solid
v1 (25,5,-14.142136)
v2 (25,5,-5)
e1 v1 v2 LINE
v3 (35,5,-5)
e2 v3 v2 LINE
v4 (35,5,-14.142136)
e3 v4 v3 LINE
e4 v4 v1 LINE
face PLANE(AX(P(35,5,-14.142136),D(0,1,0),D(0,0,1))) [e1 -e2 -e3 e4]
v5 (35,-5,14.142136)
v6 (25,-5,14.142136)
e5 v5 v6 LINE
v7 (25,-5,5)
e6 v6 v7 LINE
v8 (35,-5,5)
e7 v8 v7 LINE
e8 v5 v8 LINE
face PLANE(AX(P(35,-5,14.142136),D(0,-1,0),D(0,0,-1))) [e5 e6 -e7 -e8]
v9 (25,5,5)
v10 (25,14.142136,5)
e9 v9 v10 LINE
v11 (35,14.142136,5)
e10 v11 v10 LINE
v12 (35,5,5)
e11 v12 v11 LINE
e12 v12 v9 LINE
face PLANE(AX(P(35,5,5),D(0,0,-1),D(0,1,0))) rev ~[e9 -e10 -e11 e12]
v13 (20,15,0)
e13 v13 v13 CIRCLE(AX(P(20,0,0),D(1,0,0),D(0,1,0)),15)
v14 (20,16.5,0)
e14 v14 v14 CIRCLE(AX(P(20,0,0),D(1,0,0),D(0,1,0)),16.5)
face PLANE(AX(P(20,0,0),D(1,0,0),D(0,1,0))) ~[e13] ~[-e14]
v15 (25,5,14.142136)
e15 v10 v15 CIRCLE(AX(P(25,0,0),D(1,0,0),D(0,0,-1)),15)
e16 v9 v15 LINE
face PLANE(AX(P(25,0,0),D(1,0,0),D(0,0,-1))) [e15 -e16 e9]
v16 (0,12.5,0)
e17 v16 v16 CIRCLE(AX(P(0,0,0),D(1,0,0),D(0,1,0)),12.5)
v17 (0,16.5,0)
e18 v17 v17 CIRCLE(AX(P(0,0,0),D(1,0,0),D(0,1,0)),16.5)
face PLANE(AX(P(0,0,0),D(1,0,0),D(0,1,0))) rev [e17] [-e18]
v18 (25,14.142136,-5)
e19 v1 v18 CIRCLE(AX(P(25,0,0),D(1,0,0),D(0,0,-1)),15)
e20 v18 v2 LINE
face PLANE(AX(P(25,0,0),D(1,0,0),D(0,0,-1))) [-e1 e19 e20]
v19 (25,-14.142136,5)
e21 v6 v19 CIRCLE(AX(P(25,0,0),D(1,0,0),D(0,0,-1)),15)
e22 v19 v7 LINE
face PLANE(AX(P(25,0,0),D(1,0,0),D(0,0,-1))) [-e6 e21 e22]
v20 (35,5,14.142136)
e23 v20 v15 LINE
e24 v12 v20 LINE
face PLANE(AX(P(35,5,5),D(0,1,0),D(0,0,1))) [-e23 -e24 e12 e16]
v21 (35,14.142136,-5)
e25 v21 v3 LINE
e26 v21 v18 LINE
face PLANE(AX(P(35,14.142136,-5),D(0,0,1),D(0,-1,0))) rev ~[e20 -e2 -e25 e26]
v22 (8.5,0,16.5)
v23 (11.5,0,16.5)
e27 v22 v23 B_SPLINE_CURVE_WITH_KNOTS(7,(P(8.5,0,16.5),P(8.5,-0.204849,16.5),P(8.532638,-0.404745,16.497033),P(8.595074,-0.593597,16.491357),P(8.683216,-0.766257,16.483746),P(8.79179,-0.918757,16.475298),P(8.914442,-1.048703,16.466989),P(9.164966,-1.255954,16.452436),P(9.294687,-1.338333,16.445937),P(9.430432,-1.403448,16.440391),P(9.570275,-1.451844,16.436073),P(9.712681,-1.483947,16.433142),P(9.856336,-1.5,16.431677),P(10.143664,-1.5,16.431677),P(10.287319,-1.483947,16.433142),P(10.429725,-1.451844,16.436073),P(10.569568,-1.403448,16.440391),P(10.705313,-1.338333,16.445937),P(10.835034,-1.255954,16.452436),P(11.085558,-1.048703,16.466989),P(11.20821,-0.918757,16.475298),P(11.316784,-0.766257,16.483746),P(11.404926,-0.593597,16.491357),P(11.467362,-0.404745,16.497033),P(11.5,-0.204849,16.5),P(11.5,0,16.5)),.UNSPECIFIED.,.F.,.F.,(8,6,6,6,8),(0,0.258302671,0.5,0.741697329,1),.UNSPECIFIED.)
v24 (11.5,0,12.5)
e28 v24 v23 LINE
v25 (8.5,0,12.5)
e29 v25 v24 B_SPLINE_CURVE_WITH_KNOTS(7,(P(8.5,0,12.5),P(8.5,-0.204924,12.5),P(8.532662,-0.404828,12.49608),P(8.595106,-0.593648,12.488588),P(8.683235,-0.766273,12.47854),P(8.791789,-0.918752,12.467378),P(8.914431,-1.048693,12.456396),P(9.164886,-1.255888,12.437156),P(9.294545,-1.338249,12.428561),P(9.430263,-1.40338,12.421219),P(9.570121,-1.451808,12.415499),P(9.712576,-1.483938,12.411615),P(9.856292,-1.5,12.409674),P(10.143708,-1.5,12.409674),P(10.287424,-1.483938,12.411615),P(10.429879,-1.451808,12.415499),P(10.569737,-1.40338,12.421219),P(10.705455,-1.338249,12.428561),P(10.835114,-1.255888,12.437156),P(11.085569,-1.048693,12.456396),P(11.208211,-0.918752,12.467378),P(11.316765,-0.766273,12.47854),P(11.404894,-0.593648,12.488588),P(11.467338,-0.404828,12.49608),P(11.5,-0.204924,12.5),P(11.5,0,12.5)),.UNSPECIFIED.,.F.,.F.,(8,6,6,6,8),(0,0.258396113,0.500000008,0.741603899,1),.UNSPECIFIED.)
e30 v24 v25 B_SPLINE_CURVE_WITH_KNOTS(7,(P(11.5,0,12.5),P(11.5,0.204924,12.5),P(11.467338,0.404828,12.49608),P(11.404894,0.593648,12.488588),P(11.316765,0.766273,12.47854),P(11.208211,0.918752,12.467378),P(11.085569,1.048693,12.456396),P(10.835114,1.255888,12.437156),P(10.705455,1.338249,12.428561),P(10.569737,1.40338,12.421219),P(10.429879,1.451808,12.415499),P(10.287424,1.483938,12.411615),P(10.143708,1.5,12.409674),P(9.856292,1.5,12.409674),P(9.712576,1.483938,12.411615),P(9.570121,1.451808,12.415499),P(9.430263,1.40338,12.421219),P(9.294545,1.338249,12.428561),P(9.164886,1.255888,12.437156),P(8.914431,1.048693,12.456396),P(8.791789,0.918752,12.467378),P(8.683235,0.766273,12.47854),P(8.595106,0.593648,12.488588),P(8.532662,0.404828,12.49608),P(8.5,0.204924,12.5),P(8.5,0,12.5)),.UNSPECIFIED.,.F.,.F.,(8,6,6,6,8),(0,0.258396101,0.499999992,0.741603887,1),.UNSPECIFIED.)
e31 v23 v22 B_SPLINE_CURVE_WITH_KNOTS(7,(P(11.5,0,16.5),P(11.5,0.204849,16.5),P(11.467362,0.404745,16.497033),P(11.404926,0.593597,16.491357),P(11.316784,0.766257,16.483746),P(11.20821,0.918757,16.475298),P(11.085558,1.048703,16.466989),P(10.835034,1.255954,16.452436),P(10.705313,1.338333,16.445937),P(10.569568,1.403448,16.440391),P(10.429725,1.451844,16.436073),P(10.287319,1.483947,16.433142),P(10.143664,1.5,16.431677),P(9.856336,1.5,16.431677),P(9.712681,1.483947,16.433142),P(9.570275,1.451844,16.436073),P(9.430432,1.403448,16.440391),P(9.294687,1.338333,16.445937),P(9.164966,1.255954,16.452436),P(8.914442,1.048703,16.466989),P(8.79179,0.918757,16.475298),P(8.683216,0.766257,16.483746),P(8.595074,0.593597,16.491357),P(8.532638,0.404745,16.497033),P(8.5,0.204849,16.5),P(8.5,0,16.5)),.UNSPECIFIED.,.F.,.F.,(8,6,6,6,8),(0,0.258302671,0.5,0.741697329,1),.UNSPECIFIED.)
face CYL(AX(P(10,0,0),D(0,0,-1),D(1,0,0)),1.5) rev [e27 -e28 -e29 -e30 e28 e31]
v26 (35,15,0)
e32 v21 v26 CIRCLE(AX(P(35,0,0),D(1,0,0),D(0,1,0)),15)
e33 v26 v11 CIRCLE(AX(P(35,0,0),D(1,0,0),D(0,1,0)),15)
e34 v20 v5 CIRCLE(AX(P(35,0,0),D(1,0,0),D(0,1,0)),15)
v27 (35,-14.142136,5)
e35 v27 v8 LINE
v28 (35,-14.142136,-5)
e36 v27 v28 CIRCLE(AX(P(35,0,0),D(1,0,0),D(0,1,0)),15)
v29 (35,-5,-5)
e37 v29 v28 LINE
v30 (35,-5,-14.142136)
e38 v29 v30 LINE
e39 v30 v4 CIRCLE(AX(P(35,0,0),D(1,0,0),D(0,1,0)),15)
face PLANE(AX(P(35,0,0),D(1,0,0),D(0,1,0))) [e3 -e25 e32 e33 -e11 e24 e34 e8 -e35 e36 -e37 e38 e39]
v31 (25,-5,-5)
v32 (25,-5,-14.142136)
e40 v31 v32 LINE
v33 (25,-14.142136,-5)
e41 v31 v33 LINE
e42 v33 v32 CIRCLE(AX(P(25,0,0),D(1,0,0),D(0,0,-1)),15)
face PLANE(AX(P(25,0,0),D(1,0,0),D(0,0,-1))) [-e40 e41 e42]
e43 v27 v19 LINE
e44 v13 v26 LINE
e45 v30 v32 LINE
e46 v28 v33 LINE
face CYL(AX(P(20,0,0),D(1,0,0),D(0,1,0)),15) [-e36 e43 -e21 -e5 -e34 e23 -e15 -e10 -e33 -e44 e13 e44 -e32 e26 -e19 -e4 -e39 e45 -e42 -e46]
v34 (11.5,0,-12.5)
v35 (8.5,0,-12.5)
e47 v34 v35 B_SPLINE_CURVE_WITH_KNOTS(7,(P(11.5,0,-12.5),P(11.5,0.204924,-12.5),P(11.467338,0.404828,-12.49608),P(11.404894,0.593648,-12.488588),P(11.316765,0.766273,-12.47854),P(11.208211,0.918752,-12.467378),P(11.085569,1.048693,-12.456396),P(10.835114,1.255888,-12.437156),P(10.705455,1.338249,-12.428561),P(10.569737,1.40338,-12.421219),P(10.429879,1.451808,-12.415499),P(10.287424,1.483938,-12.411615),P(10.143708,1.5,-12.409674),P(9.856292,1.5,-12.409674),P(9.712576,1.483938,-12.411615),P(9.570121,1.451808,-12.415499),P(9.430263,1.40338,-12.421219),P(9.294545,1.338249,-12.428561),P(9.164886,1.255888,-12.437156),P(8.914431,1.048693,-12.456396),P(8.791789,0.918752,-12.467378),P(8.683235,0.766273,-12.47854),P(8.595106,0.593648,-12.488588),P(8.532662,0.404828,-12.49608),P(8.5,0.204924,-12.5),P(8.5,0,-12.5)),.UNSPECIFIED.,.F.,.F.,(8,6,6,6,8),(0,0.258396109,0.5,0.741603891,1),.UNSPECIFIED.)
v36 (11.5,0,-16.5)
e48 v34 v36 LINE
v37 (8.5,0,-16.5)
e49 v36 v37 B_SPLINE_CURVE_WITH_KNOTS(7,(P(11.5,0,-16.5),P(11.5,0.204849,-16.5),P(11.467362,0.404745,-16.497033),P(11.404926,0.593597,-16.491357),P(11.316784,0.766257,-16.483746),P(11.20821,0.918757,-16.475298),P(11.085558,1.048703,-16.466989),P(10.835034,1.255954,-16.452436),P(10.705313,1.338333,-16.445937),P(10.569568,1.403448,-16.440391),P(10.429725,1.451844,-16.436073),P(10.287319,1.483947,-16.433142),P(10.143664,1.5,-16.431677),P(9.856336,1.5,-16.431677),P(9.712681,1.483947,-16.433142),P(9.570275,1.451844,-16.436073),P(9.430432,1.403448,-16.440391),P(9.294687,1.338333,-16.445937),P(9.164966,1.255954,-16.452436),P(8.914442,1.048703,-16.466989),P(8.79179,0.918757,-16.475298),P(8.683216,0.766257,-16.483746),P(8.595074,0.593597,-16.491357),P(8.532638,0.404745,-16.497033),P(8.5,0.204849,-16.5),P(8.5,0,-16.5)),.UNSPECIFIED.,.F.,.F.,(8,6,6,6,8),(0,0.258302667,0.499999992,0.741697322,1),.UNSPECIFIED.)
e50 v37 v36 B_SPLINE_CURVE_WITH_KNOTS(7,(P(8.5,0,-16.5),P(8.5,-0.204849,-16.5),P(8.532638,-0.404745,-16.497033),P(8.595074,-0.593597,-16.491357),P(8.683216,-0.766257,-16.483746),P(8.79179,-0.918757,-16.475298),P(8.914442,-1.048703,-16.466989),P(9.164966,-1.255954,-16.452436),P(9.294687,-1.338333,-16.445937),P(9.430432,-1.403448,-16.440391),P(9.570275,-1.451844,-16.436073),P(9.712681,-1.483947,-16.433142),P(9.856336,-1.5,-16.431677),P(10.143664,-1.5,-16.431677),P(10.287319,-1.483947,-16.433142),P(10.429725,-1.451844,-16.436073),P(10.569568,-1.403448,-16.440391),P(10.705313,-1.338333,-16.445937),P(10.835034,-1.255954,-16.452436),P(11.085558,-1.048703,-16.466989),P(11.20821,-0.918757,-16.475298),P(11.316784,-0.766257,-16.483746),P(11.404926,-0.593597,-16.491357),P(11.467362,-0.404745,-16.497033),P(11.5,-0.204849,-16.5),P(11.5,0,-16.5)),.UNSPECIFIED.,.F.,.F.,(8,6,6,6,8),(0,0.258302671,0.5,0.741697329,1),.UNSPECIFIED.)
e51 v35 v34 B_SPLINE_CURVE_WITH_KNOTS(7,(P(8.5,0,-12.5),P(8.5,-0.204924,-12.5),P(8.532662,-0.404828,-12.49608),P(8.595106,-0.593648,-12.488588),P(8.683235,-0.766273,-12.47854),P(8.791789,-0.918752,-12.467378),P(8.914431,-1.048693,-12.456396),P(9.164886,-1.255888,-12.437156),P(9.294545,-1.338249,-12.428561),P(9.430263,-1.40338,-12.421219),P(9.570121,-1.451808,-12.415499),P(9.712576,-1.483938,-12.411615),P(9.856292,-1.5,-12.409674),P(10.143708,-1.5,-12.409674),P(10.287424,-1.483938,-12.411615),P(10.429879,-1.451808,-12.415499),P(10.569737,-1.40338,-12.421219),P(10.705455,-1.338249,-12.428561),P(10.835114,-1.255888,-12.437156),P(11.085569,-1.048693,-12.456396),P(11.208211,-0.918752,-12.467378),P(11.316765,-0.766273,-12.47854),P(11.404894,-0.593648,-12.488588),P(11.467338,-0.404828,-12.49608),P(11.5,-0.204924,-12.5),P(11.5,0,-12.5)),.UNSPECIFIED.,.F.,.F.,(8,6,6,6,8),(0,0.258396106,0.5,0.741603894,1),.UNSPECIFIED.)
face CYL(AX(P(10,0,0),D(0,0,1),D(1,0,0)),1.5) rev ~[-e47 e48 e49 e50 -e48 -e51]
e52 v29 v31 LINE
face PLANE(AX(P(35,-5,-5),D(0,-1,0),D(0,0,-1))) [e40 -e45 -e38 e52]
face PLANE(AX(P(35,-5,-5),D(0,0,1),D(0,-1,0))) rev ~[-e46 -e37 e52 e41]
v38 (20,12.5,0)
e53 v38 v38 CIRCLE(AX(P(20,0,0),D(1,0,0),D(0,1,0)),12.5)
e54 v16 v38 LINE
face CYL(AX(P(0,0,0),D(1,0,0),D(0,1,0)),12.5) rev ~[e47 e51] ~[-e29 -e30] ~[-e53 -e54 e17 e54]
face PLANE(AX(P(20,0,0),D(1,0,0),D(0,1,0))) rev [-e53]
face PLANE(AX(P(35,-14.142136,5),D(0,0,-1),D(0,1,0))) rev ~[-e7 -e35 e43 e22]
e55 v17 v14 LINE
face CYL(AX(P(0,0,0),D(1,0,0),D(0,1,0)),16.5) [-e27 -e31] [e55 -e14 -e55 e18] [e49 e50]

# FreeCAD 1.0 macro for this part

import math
import FreeCAD as App
import Part
import Sketcher
Q = App.Units.Quantity


def add_polygon(sketch, points):
    """Adds a closed chain of lines whose ends are joined by coincident constraints."""
    first, n = sketch.GeometryCount, len(points)
    for a, b in zip(points, points[1:] + points[:1]):
        sketch.addGeometry(Part.LineSegment(App.Vector(*a, 0), App.Vector(*b, 0)), False)
    for i in range(n):
        sketch.addConstraint(Sketcher.Constraint("Coincident", first + i, 2, first + (i + 1) % n, 1))

doc = App.newDocument("Part")
params = doc.addObject("Spreadsheet::Sheet", "Params")
for row, (alias, value) in enumerate([
    ("sketch1_width", "15 mm"),
    ("sketch1_width2", "20 mm"),
    ("sketch1_height", "4 mm"),
    ("sketch1_height2", "12.5 mm"),
    ("revolution_angle", "360 deg"),
    ("sketch2_diameter", "3 mm"),
    ("pocket1_length", "40 mm"),
    ("sketch3_radius", "15 mm"),
    ("pocket2_length", "10 mm"),
], start=1):
    params.set(f"A{row}", alias)
    params.set(f"B{row}", "=" + value)
    params.setAlias(f"B{row}", alias)

body = doc.addObject("PartDesign::Body", "Body")

sketch1 = body.newObject("Sketcher::SketchObject", "Sketch")
sketch1.AttachmentSupport = (doc.getObject("XY_Plane"), [""])
sketch1.MapMode = "FlatFace"
add_polygon(sketch1, [(20, 12.5), (20, 0), (35, 0), (35, 15), (20, 15), (20, 16.5), (0, 16.5), (0, 12.5)])
sketch1.addConstraint([
    Sketcher.Constraint("Vertical", 0),
    Sketcher.Constraint("Horizontal", 1),
    Sketcher.Constraint("Vertical", 2),
    Sketcher.Constraint("Horizontal", 3),
    Sketcher.Constraint("Vertical", 4),
    Sketcher.Constraint("Horizontal", 5),
    Sketcher.Constraint("Vertical", 6),
    Sketcher.Constraint("Horizontal", 7),
    Sketcher.Constraint("PointOnObject", 0, 2, -1),
    Sketcher.Constraint("PointOnObject", 5, 2, -2),
    Sketcher.Constraint("Vertical", 0, 2, 3, 2),
    Sketcher.Constraint("Equal", 3, 2),
    Sketcher.Constraint("DistanceX", 1, 1, 1, 2, Q("15 mm")),
    Sketcher.Constraint("DistanceX", 5, 2, 5, 1, Q("20 mm")),
    Sketcher.Constraint("DistanceY", 6, 2, 6, 1, Q("4 mm")),
    Sketcher.Constraint("DistanceY", 0, 2, 0, 1, Q("12.5 mm")),
])
sketch1.setExpression("Constraints[20]", "Params.sketch1_width")
sketch1.setExpression("Constraints[21]", "Params.sketch1_width2")
sketch1.setExpression("Constraints[22]", "Params.sketch1_height")
sketch1.setExpression("Constraints[23]", "Params.sketch1_height2")
revolution = body.newObject("PartDesign::Revolution", "Revolution")
revolution.Profile = sketch1
revolution.ReferenceAxis = (sketch1, ["H_Axis"])
revolution.setExpression("Angle", "Params.revolution_angle")

sketch2 = body.newObject("Sketcher::SketchObject", "Sketch001")
sketch2.AttachmentSupport = (doc.getObject("XY_Plane"), [""])
sketch2.MapMode = "FlatFace"
sketch2.addGeometry(Part.Circle(App.Vector(10, 0, 0), App.Vector(0, 0, 1), 1.5), False)
sketch2.addConstraint([
    Sketcher.Constraint("PointOnObject", 0, 3, -1),
    Sketcher.Constraint("Diameter", 0, Q("3 mm")),
    Sketcher.Constraint("DistanceX", -1, 1, 0, 3, Q("10 mm")),
])
sketch2.setExpression("Constraints[1]", "Params.sketch2_diameter")
pocket1 = body.newObject("PartDesign::Pocket", "Pocket")
pocket1.Profile = sketch2
pocket1.setExpression("Length", "Params.pocket1_length")
pocket1.Midplane = True

sketch3 = body.newObject("Sketcher::SketchObject", "Sketch002")
sketch3.AttachmentSupport = (doc.getObject("YZ_Plane"), [""])
sketch3.MapMode = "FlatFace"
sketch3.AttachmentOffset = App.Placement(App.Vector(0, 0, 35), App.Rotation())
sketch3.addGeometry([
    Part.LineSegment(App.Vector(5, 14, 0), App.Vector(5, 5, 0)),
    Part.LineSegment(App.Vector(5, 5, 0), App.Vector(14, 5, 0)),
    Part.ArcOfCircle(Part.Circle(App.Vector(0, 0, 0), App.Vector(0, 0, 1), 15), math.radians(19), math.radians(71)),
    Part.LineSegment(App.Vector(-14, 5, 0), App.Vector(-5, 5, 0)),
    Part.LineSegment(App.Vector(-5, 5, 0), App.Vector(-5, 14, 0)),
    Part.ArcOfCircle(Part.Circle(App.Vector(0, 0, 0), App.Vector(0, 0, 1), 15), math.radians(109), math.radians(161)),
    Part.LineSegment(App.Vector(14, -5, 0), App.Vector(5, -5, 0)),
    Part.LineSegment(App.Vector(5, -5, 0), App.Vector(5, -14, 0)),
    Part.ArcOfCircle(Part.Circle(App.Vector(0, 0, 0), App.Vector(0, 0, 1), 15), math.radians(-71), math.radians(-19)),
    Part.LineSegment(App.Vector(-5, -14, 0), App.Vector(-5, -5, 0)),
    Part.LineSegment(App.Vector(-5, -5, 0), App.Vector(-14, -5, 0)),
    Part.ArcOfCircle(Part.Circle(App.Vector(0, 0, 0), App.Vector(0, 0, 1), 15), math.radians(-161), math.radians(-109)),
], False)
sketch3.addConstraint([
    Sketcher.Constraint("Coincident", 0, 2, 1, 1),
    Sketcher.Constraint("Coincident", 1, 2, 2, 1),
    Sketcher.Constraint("Coincident", 2, 2, 0, 1),
    Sketcher.Constraint("Coincident", 3, 2, 4, 1),
    Sketcher.Constraint("Coincident", 4, 2, 5, 1),
    Sketcher.Constraint("Coincident", 5, 2, 3, 1),
    Sketcher.Constraint("Coincident", 6, 2, 7, 1),
    Sketcher.Constraint("Coincident", 7, 2, 8, 1),
    Sketcher.Constraint("Coincident", 8, 2, 6, 1),
    Sketcher.Constraint("Coincident", 9, 2, 10, 1),
    Sketcher.Constraint("Coincident", 10, 2, 11, 1),
    Sketcher.Constraint("Coincident", 11, 2, 9, 1),
    Sketcher.Constraint("Vertical", 0),
    Sketcher.Constraint("Horizontal", 1),
    Sketcher.Constraint("Horizontal", 3),
    Sketcher.Constraint("Vertical", 4),
    Sketcher.Constraint("Horizontal", 6),
    Sketcher.Constraint("Vertical", 7),
    Sketcher.Constraint("Vertical", 9),
    Sketcher.Constraint("Horizontal", 10),
    Sketcher.Constraint("Coincident", 2, 3, -1, 1),
    Sketcher.Constraint("Coincident", 5, 3, -1, 1),
    Sketcher.Constraint("Coincident", 8, 3, -1, 1),
    Sketcher.Constraint("Coincident", 11, 3, -1, 1),
    Sketcher.Constraint("Equal", 2, 5),
    Sketcher.Constraint("Equal", 5, 8),
    Sketcher.Constraint("Equal", 8, 11),
    Sketcher.Constraint("Symmetric", 3, 2, 6, 2, -1, 1),
    Sketcher.Constraint("Symmetric", 0, 2, 9, 2, -1, 1),
    Sketcher.Constraint("Symmetric", 0, 2, 3, 2, -2),
    Sketcher.Constraint("Equal", 10, 0),
    Sketcher.Constraint("DistanceX", -1, 1, 0, 2, Q("5 mm")),
    Sketcher.Constraint("Radius", 2, Q("15 mm")),
])
sketch3.setExpression("Constraints[32]", "Params.sketch3_radius")
pocket2 = body.newObject("PartDesign::Pocket", "Pocket001")
pocket2.Profile = sketch3
pocket2.setExpression("Length", "Params.pocket2_length")

doc.recompute()
